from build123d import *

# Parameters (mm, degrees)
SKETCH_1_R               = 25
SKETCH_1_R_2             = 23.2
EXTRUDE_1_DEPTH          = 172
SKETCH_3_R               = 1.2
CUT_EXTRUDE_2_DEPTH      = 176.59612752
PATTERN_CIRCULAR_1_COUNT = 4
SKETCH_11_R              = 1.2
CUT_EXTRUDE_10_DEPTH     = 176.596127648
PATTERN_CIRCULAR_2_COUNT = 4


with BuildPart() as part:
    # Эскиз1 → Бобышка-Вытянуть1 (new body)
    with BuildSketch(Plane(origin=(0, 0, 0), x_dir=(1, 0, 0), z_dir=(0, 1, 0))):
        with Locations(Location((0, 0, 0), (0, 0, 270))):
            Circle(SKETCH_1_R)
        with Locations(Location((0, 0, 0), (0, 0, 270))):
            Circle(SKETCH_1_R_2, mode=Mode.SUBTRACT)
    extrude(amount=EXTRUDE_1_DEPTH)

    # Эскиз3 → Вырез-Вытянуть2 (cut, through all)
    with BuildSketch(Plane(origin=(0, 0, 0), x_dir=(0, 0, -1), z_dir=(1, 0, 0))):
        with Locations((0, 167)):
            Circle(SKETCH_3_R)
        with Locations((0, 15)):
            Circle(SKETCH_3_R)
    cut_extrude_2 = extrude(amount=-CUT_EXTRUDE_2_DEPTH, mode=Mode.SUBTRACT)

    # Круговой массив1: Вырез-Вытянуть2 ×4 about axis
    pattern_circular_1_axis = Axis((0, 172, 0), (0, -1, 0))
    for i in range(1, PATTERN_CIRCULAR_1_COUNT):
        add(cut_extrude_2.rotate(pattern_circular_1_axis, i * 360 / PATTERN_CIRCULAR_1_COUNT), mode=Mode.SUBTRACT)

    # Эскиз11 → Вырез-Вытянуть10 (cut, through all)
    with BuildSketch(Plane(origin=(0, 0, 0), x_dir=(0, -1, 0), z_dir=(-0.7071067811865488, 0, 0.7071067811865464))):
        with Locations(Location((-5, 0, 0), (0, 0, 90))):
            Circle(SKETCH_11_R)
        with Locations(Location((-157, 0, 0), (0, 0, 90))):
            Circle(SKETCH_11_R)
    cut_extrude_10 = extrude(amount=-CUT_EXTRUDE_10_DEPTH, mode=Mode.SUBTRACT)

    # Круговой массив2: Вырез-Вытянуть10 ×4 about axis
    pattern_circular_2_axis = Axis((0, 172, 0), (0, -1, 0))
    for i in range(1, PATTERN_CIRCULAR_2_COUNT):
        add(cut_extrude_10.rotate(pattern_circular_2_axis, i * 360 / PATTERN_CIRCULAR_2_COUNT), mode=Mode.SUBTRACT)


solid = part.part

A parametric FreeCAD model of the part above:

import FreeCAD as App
import Part
import Sketcher

V = App.Vector

doc = App.newDocument("Part")
body = doc.addObject("PartDesign::Body", "Body")

# Sketch on XZ plane
sketch1 = body.newObject("Sketcher::SketchObject", "Sketch")
sketch1.AttachmentSupport = (doc.getObject("XZ_Plane"), [""])
sketch1.MapMode = "FlatFace"
sketch1.addGeometry([
    Part.Circle(V(0, 0, 0), V(0, 0, 1), 25),
    Part.Circle(V(0, 0, 0), V(0, 0, 1), 23),
], False)
sketch1.addConstraint([
    Sketcher.Constraint("Coincident", 0, 3, -1, 1),
    Sketcher.Constraint("Coincident", 1, 3, -1, 1),
    Sketcher.Constraint("Diameter", 0, 50.0),
    Sketcher.Constraint("Diameter", 1, 46.4),
])
pad1 = body.newObject("PartDesign::Pad", "Pad")
pad1.Profile = sketch1
pad1.Length = 172
pad1.Reversed = True

# Sketch on YZ plane
sketch2 = body.newObject("Sketcher::SketchObject", "Sketch001")
sketch2.AttachmentSupport = (doc.getObject("YZ_Plane"), [""])
sketch2.MapMode = "FlatFace"
sketch2.addGeometry([
    Part.Circle(V(167, 0, 0), V(0, 0, 1), 1.2),
    Part.Circle(V(15, 0, 0), V(0, 0, 1), 1.2),
], False)
sketch2.addConstraint([
    Sketcher.Constraint("Equal", 0, 1),
    Sketcher.Constraint("PointOnObject", 0, 3, -1),
    Sketcher.Constraint("PointOnObject", 1, 3, -1),
    Sketcher.Constraint("Diameter", 0, 2.4),
    Sketcher.Constraint("DistanceX", -1, 1, 0, 3, 167.0),
    Sketcher.Constraint("DistanceX", -1, 1, 1, 3, 15.0),
])
pocket1 = body.newObject("PartDesign::Pocket", "Pocket")
pocket1.Profile = sketch2
pocket1.Type = "ThroughAll"
doc.recompute()

polarpattern = body.newObject("PartDesign::PolarPattern", "PolarPattern")
polarpattern.Originals = [pocket1]
polarpattern.Axis = (doc.getObject("Y_Axis"), [""])
polarpattern.Angle = 360
polarpattern.Occurrences = 4
body.Tip = polarpattern

# Sketch on an angled plane
sketch3 = body.newObject("Sketcher::SketchObject", "Sketch002")
sketch3.Placement = App.Placement(V(0, 0, 0), App.Rotation(V(0, -1, 0), V(0.707106781, 0, 0.707106781), V(-0.707106781, 0, 0.707106781), "ZXY"))
sketch3.addGeometry([
    Part.Circle(V(-5, 0, 0), V(0, 0, 1), 1.2),
    Part.Circle(V(-157, 0, 0), V(0, 0, 1), 1.2),
], False)
sketch3.addConstraint([
    Sketcher.Constraint("Equal", 0, 1),
    Sketcher.Constraint("PointOnObject", 0, 3, -1),
    Sketcher.Constraint("PointOnObject", 1, 3, -1),
    Sketcher.Constraint("Diameter", 0, 2.4),
    Sketcher.Constraint("DistanceX", 0, 3, -1, 1, 5.0),
    Sketcher.Constraint("DistanceX", 1, 3, -1, 1, 157.0),
])
pocket2 = body.newObject("PartDesign::Pocket", "Pocket001")
pocket2.Profile = sketch3
pocket2.Type = "ThroughAll"
doc.recompute()

polarpattern2 = body.newObject("PartDesign::PolarPattern", "PolarPattern001")
polarpattern2.Originals = [pocket2]
polarpattern2.Axis = (doc.getObject("Y_Axis"), [""])
polarpattern2.Angle = 360
polarpattern2.Occurrences = 4
body.Tip = polarpattern2

doc.recompute()
